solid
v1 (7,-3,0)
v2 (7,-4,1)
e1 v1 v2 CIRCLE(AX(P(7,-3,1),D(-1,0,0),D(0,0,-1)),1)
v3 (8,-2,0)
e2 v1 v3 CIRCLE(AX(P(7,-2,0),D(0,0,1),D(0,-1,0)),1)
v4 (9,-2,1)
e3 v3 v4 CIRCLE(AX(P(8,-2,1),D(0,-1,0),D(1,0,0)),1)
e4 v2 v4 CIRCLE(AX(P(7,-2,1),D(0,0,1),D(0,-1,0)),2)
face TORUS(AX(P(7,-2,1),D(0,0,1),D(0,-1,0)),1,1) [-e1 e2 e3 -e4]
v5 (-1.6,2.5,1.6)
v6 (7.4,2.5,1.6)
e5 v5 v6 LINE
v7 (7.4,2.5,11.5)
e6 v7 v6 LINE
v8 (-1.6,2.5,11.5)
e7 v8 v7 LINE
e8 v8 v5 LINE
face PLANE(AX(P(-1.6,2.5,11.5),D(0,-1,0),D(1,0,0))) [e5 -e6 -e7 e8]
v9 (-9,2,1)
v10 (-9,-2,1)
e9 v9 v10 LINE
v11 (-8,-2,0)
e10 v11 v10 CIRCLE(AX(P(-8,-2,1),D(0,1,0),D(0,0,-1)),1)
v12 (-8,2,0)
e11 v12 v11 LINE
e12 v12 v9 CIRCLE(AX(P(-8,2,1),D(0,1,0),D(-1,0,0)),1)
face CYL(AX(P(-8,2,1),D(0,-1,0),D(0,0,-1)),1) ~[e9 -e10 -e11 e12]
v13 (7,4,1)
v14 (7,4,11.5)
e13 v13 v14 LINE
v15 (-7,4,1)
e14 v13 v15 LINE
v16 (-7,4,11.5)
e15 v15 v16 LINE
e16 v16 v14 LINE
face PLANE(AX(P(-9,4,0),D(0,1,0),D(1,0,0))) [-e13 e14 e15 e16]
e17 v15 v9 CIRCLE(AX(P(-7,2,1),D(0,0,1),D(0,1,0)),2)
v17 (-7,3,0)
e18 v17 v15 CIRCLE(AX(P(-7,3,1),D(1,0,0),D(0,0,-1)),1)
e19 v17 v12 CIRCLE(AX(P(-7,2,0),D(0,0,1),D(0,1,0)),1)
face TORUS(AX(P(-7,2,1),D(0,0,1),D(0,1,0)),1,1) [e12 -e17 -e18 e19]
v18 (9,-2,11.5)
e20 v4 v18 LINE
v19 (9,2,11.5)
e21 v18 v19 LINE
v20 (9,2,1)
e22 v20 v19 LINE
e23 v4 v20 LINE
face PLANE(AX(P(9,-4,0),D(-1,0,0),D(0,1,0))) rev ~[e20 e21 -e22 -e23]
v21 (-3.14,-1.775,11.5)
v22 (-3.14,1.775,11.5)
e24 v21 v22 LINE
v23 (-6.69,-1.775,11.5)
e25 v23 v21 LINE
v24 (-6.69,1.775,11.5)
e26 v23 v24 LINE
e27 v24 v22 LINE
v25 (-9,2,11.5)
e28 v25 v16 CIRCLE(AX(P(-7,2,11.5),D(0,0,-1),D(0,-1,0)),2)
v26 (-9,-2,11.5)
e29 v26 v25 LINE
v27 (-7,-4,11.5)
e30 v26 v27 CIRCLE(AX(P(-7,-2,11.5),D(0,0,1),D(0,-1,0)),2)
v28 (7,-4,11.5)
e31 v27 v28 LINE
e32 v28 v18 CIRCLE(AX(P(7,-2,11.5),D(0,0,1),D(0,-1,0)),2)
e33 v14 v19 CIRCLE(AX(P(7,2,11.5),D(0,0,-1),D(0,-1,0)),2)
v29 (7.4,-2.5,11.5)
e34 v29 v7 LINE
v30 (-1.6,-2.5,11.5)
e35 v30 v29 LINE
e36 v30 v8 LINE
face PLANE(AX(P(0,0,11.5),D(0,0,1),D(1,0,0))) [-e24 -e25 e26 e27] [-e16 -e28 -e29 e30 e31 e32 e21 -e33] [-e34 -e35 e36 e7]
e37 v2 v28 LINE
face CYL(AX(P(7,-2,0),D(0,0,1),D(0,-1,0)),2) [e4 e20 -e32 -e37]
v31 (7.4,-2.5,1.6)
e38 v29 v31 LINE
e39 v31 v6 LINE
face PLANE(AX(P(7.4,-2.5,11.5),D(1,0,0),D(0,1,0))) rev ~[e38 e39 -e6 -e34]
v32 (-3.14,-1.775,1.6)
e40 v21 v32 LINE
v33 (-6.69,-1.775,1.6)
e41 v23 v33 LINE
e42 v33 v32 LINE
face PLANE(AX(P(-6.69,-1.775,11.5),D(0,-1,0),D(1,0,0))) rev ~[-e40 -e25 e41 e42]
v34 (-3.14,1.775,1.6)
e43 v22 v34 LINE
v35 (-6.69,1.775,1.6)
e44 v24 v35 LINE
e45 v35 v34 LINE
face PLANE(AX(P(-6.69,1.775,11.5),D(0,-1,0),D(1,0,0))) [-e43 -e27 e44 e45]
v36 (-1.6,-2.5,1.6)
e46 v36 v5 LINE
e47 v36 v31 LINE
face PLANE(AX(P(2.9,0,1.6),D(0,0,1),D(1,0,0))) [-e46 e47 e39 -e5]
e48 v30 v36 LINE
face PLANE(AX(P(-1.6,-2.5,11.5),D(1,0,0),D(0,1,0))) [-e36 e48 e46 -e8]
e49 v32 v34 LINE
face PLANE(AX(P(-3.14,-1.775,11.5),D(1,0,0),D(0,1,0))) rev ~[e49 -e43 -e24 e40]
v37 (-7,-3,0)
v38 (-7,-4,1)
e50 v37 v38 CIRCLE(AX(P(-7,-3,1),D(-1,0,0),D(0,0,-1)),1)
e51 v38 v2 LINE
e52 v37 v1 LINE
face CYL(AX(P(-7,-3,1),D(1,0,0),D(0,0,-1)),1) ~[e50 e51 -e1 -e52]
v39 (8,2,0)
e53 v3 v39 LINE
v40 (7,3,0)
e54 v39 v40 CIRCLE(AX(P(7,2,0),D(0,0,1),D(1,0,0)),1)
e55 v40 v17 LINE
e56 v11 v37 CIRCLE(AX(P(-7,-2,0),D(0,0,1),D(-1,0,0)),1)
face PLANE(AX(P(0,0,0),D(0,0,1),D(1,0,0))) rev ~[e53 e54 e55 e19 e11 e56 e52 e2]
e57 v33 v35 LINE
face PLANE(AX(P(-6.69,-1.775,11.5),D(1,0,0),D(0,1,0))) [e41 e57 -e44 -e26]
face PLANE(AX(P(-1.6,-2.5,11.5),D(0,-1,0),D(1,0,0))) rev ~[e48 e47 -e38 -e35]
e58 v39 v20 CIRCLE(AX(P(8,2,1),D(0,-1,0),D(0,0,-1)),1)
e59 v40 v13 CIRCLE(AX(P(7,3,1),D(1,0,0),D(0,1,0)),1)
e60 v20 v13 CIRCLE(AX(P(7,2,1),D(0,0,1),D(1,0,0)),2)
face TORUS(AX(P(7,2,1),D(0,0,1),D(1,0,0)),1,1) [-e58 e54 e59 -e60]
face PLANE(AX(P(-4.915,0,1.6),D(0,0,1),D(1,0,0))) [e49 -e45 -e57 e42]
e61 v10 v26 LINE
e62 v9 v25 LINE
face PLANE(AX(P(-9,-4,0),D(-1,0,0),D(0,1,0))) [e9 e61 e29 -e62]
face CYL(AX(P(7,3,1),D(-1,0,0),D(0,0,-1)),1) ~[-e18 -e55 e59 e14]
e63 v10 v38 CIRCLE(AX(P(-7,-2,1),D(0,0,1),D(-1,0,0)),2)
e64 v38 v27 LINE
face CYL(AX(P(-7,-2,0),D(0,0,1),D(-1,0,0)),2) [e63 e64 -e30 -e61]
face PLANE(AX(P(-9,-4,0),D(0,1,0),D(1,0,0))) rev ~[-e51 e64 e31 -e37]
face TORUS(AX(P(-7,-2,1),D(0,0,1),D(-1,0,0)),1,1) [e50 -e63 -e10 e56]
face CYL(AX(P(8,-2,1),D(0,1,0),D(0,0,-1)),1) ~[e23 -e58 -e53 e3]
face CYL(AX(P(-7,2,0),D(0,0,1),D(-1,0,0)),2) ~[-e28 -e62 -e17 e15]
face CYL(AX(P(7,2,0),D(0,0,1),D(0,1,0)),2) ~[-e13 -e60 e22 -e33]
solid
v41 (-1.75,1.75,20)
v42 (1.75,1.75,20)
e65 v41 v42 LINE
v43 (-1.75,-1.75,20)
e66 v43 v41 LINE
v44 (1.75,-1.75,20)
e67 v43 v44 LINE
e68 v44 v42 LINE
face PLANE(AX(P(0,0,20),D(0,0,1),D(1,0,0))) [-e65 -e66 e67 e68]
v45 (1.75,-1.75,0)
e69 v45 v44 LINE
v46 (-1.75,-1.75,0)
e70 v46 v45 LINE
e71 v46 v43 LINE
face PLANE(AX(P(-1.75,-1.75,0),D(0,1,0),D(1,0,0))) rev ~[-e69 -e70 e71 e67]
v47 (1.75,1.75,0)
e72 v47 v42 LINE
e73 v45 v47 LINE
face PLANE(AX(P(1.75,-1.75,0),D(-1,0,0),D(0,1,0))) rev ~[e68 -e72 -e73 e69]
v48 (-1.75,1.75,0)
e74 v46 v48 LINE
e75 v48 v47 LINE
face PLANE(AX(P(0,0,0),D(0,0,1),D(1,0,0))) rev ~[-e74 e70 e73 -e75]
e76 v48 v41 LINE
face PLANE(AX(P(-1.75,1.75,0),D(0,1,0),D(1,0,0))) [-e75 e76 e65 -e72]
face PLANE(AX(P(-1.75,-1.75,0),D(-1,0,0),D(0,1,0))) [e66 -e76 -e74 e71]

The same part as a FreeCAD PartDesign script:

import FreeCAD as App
import Part
import Sketcher

V = App.Vector
Q = App.Units.Quantity


def edges_at(feature, points):
    """Names of the edges that pass closest to the given points."""
    edges = feature.Shape.Edges
    near = lambda p: min(range(len(edges)), key=lambda i: edges[i].distToShape(Part.Vertex(*p))[0])
    return sorted({f"Edge{near(p) + 1}" for p in points})

doc = App.newDocument("Part")
body = doc.addObject("PartDesign::Body", "Body")

# Sketch on XY plane
sketch1 = body.newObject("Sketcher::SketchObject", "Sketch")
sketch1.AttachmentSupport = (doc.getObject("XY_Plane"), [""])
sketch1.MapMode = "FlatFace"
sketch1.addGeometry([
    Part.LineSegment(V(-9, 4, 0), V(-9, -4, 0)),
    Part.LineSegment(V(-9, -4, 0), V(9, -4, 0)),
    Part.LineSegment(V(9, -4, 0), V(9, 4, 0)),
    Part.LineSegment(V(9, 4, 0), V(-9, 4, 0)),
], False)
sketch1.addConstraint([
    Sketcher.Constraint("Coincident", 0, 2, 1, 1),
    Sketcher.Constraint("Coincident", 1, 2, 2, 1),
    Sketcher.Constraint("Coincident", 2, 2, 3, 1),
    Sketcher.Constraint("Coincident", 3, 2, 0, 1),
    Sketcher.Constraint("Vertical", 0),
    Sketcher.Constraint("Horizontal", 1),
    Sketcher.Constraint("Vertical", 2),
    Sketcher.Constraint("Horizontal", 3),
    Sketcher.Constraint("Symmetric", 0, 2, 2, 2, -1, 1),
    Sketcher.Constraint("DistanceX", 1, 1, 1, 2, Q("18 mm")),
    Sketcher.Constraint("DistanceY", 0, 2, 0, 1, Q("8 mm")),
])
pad1 = body.newObject("PartDesign::Pad", "Pad")
pad1.Profile = sketch1
pad1.Length = 11.5

# Sketch on XY plane
sketch2 = body.newObject("Sketcher::SketchObject", "Sketch001")
sketch2.AttachmentSupport = (doc.getObject("XY_Plane"), [""])
sketch2.MapMode = "FlatFace"
sketch2.AttachmentOffset = App.Placement(V(0, 0, 11.5), App.Rotation())
sketch2.addGeometry([
    Part.LineSegment(V(-1.6, 2.5, 0), V(-1.6, -2.5, 0)),  # 0
    Part.LineSegment(V(-1.6, -2.5, 0), V(7.4, -2.5, 0)),  # 1
    Part.LineSegment(V(7.4, -2.5, 0), V(7.4, 2.5, 0)),  # 2
    Part.LineSegment(V(7.4, 2.5, 0), V(-1.6, 2.5, 0)),  # 3
    Part.LineSegment(V(-6.69, 1.775, 0), V(-6.69, -1.775, 0)),  # 4
    Part.LineSegment(V(-6.69, -1.775, 0), V(-3.14, -1.775, 0)),  # 5
    Part.LineSegment(V(-3.14, -1.775, 0), V(-3.14, 1.775, 0)),  # 6
    Part.LineSegment(V(-3.14, 1.775, 0), V(-6.69, 1.775, 0)),  # 7
], False)
sketch2.addConstraint([
    Sketcher.Constraint("Coincident", 0, 2, 1, 1),
    Sketcher.Constraint("Coincident", 1, 2, 2, 1),
    Sketcher.Constraint("Coincident", 2, 2, 3, 1),
    Sketcher.Constraint("Coincident", 3, 2, 0, 1),
    Sketcher.Constraint("Coincident", 4, 2, 5, 1),
    Sketcher.Constraint("Coincident", 5, 2, 6, 1),
    Sketcher.Constraint("Coincident", 6, 2, 7, 1),
    Sketcher.Constraint("Coincident", 7, 2, 4, 1),
    Sketcher.Constraint("Vertical", 0),
    Sketcher.Constraint("Horizontal", 1),
    Sketcher.Constraint("Vertical", 2),
    Sketcher.Constraint("Horizontal", 3),
    Sketcher.Constraint("Vertical", 4),
    Sketcher.Constraint("Horizontal", 5),
    Sketcher.Constraint("Vertical", 6),
    Sketcher.Constraint("Horizontal", 7),
    Sketcher.Constraint("Equal", 7, 4),
    Sketcher.Constraint("DistanceX", 1, 1, 1, 2, Q("9 mm")),
    Sketcher.Constraint("DistanceY", 0, 2, 0, 1, Q("5 mm")),
    Sketcher.Constraint("DistanceX", 5, 1, 5, 2, Q("3.55 mm")),
    Sketcher.Constraint("DistanceX", 0, 2, -1, 1, Q("1.6 mm")),
    Sketcher.Constraint("DistanceY", 0, 2, -1, 1, Q("2.5 mm")),
    Sketcher.Constraint("DistanceX", 4, 2, -1, 1, Q("6.69 mm")),
    Sketcher.Constraint("DistanceY", 4, 2, -1, 1, Q("1.775 mm")),
])
pocket1 = body.newObject("PartDesign::Pocket", "Pocket")
pocket1.Profile = sketch2
pocket1.Length = 9.9
doc.recompute()

fillet = body.newObject("PartDesign::Fillet", "Fillet")
fillet.Base = (pocket1, edges_at(pocket1, [
    (9, -4, 5.75),
    (9, 4, 5.75),
    (-9, -4, 5.75),
    (-9, 4, 5.75),
]))
fillet.Radius = 2
doc.recompute()

fillet2 = body.newObject("PartDesign::Fillet", "Fillet001")
fillet2.Base = (fillet, edges_at(fillet, [
    (0, -4, 0),
    (0, 4, 0),
    (9, 0, 0),
    (-9, 0, 0),
]))
fillet2.Radius = 1
body2 = doc.addObject("PartDesign::Body", "Body001")

# Sketch on XY plane
sketch3 = body2.newObject("Sketcher::SketchObject", "Sketch002")
sketch3.AttachmentSupport = (doc.getObject("XY_Plane001"), [""])
sketch3.MapMode = "FlatFace"
sketch3.addGeometry([
    Part.LineSegment(V(-1.75, 1.75, 0), V(-1.75, -1.75, 0)),
    Part.LineSegment(V(-1.75, -1.75, 0), V(1.75, -1.75, 0)),
    Part.LineSegment(V(1.75, -1.75, 0), V(1.75, 1.75, 0)),
    Part.LineSegment(V(1.75, 1.75, 0), V(-1.75, 1.75, 0)),
], False)
sketch3.addConstraint([
    Sketcher.Constraint("Coincident", 0, 2, 1, 1),
    Sketcher.Constraint("Coincident", 1, 2, 2, 1),
    Sketcher.Constraint("Coincident", 2, 2, 3, 1),
    Sketcher.Constraint("Coincident", 3, 2, 0, 1),
    Sketcher.Constraint("Vertical", 0),
    Sketcher.Constraint("Horizontal", 1),
    Sketcher.Constraint("Vertical", 2),
    Sketcher.Constraint("Horizontal", 3),
    Sketcher.Constraint("Symmetric", 0, 2, 2, 2, -1, 1),
    Sketcher.Constraint("Equal", 3, 0),
    Sketcher.Constraint("DistanceX", 1, 1, 1, 2, Q("3.5 mm")),
])
pad2 = body2.newObject("PartDesign::Pad", "Pad001")
pad2.Profile = sketch3
pad2.Length = 20

doc.recompute()
